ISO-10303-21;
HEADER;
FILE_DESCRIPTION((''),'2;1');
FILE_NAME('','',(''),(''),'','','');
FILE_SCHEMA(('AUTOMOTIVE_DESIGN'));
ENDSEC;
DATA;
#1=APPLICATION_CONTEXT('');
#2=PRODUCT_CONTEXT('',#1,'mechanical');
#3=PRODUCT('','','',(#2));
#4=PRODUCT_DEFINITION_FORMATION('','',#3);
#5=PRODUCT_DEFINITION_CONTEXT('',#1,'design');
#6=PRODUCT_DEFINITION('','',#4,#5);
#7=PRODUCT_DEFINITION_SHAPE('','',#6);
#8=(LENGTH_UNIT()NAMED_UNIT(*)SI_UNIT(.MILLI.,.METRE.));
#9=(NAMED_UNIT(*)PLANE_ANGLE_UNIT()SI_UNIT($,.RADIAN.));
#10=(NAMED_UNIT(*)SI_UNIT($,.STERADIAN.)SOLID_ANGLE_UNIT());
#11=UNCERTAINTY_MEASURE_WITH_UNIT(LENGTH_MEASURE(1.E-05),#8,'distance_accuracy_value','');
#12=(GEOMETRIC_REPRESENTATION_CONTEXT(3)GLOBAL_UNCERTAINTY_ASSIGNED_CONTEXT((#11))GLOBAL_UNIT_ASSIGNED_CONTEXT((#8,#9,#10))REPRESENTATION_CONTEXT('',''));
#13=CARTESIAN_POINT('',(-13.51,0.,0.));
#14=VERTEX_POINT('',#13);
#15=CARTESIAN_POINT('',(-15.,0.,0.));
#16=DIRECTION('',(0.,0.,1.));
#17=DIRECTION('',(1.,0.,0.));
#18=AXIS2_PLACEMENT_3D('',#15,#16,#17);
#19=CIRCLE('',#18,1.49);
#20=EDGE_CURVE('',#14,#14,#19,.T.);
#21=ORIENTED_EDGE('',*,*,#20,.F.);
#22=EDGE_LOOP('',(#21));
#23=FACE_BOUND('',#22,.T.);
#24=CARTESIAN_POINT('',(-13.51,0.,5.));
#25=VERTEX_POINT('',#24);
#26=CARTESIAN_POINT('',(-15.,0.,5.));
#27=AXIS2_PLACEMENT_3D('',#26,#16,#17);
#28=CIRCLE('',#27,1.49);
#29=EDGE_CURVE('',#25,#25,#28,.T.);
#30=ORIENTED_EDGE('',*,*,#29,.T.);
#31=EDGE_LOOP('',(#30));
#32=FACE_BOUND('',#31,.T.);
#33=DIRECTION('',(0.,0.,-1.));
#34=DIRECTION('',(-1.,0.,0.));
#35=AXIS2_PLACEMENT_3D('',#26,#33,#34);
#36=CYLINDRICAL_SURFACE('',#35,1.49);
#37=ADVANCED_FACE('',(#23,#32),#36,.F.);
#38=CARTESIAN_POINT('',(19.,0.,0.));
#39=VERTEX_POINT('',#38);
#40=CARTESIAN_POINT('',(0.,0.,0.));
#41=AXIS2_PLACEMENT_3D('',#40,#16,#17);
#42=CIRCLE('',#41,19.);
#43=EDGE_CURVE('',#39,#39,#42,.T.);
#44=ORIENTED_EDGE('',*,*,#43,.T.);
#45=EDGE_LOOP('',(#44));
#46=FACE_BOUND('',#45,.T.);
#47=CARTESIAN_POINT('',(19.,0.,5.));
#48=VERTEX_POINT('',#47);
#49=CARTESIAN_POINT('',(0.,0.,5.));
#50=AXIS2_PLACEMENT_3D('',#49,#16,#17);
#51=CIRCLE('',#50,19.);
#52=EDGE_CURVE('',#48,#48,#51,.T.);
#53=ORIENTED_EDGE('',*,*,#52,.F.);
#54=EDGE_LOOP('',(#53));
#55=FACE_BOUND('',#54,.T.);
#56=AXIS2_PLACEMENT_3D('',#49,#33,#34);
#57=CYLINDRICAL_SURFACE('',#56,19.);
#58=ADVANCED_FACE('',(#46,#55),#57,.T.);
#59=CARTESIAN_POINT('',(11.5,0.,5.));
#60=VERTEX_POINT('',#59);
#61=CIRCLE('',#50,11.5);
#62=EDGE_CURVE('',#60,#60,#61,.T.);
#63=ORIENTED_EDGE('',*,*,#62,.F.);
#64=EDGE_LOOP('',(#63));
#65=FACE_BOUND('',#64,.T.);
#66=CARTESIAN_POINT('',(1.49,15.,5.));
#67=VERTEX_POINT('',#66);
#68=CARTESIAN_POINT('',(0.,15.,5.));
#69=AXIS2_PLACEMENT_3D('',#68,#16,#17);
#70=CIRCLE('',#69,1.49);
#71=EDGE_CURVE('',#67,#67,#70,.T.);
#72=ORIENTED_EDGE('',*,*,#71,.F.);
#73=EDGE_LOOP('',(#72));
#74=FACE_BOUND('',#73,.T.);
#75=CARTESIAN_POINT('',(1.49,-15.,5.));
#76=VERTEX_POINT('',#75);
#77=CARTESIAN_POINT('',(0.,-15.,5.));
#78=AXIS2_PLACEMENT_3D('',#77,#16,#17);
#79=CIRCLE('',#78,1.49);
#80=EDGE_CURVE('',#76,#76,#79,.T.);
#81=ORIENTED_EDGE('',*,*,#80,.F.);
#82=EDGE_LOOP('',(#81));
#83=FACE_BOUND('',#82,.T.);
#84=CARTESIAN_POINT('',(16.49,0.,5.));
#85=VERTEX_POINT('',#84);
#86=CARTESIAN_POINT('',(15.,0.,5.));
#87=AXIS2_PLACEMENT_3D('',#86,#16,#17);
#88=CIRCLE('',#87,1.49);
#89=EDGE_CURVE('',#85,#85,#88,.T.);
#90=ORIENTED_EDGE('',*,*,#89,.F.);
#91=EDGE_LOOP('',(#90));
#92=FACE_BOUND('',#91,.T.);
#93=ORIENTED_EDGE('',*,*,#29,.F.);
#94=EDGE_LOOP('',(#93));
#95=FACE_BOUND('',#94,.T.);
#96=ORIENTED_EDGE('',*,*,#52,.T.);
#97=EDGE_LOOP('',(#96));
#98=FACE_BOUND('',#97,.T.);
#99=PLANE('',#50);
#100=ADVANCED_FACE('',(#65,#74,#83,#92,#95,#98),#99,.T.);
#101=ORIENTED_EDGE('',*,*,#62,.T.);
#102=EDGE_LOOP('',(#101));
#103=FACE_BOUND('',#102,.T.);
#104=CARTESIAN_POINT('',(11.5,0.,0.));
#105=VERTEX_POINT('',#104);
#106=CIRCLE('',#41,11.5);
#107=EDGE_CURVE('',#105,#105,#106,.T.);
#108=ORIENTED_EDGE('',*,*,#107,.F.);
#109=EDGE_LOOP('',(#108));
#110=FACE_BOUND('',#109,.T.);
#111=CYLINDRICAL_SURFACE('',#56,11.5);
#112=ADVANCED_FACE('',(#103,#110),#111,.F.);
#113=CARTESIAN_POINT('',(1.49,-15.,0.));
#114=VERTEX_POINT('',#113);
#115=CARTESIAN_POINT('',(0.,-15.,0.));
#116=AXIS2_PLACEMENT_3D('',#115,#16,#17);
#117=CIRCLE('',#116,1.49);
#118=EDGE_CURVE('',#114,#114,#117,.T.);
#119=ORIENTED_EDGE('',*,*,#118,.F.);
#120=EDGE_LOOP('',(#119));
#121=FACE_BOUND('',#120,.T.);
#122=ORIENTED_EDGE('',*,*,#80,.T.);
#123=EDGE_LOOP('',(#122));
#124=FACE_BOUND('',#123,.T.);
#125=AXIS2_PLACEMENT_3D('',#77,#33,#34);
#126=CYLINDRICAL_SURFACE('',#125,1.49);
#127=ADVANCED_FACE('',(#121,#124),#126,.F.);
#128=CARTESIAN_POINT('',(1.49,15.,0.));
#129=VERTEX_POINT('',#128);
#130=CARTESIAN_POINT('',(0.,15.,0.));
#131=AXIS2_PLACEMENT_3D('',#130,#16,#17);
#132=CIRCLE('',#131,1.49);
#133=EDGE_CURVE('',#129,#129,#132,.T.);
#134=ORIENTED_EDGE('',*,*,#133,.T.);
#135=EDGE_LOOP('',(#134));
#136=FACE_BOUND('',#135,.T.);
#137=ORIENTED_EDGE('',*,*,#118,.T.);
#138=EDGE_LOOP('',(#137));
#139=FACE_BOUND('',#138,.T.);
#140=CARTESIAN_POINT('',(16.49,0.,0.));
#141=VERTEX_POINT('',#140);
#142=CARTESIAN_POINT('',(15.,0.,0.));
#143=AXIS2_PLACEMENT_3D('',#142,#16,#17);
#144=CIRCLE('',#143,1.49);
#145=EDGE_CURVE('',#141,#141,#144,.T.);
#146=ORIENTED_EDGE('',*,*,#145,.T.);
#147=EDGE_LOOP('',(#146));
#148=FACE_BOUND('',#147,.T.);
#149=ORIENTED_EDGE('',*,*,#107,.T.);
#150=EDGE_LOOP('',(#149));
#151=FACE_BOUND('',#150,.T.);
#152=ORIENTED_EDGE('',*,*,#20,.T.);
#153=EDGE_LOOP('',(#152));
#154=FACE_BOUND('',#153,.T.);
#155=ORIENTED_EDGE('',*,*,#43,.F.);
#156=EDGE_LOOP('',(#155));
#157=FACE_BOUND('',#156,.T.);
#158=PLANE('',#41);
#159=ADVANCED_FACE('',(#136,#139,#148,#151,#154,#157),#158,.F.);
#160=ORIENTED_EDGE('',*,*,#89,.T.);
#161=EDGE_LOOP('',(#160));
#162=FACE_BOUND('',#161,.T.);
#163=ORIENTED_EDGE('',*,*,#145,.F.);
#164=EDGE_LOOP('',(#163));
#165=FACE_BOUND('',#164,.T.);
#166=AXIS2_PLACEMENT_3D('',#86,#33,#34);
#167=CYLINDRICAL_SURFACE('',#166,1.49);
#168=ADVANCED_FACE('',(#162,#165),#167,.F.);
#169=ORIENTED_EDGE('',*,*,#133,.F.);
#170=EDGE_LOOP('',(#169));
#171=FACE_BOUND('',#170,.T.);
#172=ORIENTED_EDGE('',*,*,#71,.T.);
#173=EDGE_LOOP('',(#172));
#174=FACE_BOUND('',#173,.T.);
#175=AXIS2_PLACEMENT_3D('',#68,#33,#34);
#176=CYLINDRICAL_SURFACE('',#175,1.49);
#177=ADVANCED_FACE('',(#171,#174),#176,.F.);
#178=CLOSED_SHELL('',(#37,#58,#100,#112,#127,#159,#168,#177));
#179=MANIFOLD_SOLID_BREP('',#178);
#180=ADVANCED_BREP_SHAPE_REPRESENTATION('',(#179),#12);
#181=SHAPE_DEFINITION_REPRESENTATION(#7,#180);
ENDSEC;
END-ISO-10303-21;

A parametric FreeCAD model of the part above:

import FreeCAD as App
import Part
import Sketcher

doc = App.newDocument("Part")
body = doc.addObject("PartDesign::Body", "Body")

sketch1 = body.newObject("Sketcher::SketchObject", "Sketch")
sketch1.AttachmentSupport = (doc.getObject("XY_Plane"), [""])
sketch1.MapMode = "FlatFace"
sketch1.addGeometry([
    Part.Circle(App.Vector(0, 0, 0), App.Vector(0, 0, 1), 19),
    Part.Circle(App.Vector(0, -15, 0), App.Vector(0, 0, 1), 1.49),
    Part.Circle(App.Vector(-15, 0, 0), App.Vector(0, 0, 1), 1.49),
    Part.Circle(App.Vector(0, 0, 0), App.Vector(0, 0, 1), 11.5),
    Part.Circle(App.Vector(15, 0, 0), App.Vector(0, 0, 1), 1.49),
    Part.Circle(App.Vector(0, 15, 0), App.Vector(0, 0, 1), 1.49),
], False)
sketch1.addConstraint([
    Sketcher.Constraint("Coincident", 0, 3, -1, 1),
    Sketcher.Constraint("Coincident", 3, 3, -1, 1),
    Sketcher.Constraint("Equal", 1, 2),
    Sketcher.Constraint("Equal", 2, 4),
    Sketcher.Constraint("Equal", 4, 5),
    Sketcher.Constraint("Symmetric", 2, 3, 4, 3, -1, 1),
    Sketcher.Constraint("Symmetric", 1, 3, 5, 3, -1, 1),
    Sketcher.Constraint("PointOnObject", 1, 3, -2),
    Sketcher.Constraint("PointOnObject", 2, 3, -1),
    Sketcher.Constraint("Diameter", 0, 38.0),
    Sketcher.Constraint("Diameter", 3, 23.0),
    Sketcher.Constraint("Diameter", 1, 2.98),
    Sketcher.Constraint("DistanceY", 1, 3, -1, 1, 15.0),
    Sketcher.Constraint("DistanceX", 2, 3, -1, 1, 15.0),
])
pad1 = body.newObject("PartDesign::Pad", "Pad")
pad1.Profile = sketch1
pad1.Length = 5

doc.recompute()
